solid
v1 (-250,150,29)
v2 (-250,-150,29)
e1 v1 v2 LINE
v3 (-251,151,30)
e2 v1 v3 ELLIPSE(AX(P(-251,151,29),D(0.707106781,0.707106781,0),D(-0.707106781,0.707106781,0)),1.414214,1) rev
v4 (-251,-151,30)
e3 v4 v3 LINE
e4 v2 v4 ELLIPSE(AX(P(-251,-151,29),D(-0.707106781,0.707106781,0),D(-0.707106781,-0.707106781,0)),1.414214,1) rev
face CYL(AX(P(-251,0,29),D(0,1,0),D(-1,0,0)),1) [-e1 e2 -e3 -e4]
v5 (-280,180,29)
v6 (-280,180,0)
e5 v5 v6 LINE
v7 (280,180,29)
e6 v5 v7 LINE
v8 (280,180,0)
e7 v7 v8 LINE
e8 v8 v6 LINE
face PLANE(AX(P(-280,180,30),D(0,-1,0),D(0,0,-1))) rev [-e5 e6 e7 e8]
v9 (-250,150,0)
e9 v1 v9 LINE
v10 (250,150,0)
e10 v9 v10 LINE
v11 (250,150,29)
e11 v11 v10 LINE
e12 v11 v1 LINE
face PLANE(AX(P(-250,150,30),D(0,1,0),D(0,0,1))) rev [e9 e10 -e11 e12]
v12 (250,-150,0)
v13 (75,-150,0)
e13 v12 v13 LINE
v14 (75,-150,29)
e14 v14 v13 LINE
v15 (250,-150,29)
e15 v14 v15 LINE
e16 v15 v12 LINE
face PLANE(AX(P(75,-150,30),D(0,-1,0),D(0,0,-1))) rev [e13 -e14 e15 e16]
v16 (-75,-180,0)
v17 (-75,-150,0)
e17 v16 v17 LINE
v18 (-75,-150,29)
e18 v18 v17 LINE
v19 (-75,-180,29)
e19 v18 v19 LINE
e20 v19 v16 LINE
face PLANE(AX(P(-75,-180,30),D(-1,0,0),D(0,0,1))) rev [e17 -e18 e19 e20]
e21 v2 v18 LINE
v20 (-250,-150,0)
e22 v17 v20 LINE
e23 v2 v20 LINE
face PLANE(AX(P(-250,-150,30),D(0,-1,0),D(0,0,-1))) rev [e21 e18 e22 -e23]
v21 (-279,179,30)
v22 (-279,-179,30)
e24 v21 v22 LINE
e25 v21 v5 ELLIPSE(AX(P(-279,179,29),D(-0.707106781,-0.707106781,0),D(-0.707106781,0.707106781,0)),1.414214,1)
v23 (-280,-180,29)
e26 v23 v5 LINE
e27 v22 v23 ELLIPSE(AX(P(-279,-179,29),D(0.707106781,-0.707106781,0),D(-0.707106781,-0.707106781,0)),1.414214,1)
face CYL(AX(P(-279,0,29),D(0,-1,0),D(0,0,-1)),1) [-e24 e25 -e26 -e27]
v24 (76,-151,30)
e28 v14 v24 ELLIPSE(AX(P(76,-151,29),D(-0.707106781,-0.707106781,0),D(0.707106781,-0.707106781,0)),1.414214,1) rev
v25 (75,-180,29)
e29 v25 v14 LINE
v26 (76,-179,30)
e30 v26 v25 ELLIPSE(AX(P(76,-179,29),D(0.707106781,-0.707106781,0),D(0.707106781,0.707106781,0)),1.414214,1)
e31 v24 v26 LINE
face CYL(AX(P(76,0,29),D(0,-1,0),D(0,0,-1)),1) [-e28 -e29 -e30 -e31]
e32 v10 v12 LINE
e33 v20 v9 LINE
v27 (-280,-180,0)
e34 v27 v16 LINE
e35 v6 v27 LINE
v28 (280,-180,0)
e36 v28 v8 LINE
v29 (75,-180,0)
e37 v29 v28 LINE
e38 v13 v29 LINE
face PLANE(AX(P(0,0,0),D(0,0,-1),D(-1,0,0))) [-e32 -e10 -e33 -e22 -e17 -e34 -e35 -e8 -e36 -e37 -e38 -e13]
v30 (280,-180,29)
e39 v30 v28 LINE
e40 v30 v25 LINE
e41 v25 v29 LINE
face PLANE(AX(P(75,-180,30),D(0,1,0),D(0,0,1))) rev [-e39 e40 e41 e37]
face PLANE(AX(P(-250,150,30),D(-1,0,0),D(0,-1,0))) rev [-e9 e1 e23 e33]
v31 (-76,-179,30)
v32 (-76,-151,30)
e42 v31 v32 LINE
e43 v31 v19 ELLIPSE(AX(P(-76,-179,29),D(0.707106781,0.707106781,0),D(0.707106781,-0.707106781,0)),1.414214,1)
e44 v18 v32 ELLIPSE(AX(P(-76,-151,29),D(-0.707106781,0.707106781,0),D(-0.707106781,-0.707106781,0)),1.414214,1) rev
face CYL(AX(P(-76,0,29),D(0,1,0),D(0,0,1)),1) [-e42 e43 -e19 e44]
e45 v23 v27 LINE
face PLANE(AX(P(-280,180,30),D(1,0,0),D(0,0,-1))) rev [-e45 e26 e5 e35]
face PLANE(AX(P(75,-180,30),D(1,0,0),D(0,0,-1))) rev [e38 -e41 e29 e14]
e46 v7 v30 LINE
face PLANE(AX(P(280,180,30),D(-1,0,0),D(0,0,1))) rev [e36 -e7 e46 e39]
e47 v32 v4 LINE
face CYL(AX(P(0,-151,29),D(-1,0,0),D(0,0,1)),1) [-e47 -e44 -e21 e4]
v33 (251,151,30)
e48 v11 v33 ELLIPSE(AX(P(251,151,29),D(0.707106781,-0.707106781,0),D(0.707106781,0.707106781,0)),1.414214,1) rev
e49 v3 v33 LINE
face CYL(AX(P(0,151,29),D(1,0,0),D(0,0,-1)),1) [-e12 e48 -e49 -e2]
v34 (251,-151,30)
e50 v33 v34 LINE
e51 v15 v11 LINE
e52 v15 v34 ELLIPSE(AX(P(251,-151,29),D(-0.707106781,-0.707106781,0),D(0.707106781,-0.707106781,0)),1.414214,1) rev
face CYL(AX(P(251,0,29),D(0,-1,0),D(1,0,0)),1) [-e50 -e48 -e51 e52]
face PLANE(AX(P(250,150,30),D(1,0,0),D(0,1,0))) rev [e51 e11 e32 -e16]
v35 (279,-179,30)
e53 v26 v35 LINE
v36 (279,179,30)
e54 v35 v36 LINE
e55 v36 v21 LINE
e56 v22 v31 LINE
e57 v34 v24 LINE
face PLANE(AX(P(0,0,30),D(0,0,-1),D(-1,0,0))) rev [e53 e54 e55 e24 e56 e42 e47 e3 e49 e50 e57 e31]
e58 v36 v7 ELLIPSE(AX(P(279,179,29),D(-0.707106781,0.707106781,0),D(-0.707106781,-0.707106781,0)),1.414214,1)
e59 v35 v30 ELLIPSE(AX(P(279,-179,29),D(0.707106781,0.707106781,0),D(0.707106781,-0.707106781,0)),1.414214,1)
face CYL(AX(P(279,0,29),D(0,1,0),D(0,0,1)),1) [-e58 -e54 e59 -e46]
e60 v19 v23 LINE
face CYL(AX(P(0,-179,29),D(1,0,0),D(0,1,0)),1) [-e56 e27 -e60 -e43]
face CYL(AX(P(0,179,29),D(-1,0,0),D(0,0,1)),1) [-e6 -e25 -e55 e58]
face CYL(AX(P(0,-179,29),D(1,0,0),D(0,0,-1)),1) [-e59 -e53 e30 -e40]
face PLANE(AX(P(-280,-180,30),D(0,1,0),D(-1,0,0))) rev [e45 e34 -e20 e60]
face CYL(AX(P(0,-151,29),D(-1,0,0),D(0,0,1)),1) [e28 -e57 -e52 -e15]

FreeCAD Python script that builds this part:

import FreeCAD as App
import Part
import Sketcher
Q = App.Units.Quantity


def edges_at(feature, points):
    """Names of the edges that pass closest to the given points."""
    edges = feature.Shape.Edges
    near = lambda p: min(range(len(edges)), key=lambda i: edges[i].distToShape(Part.Vertex(*p))[0])
    return sorted({f"Edge{near(p) + 1}" for p in points})

doc = App.newDocument("Part")
body = doc.addObject("PartDesign::Body", "Body")

sketch1 = body.newObject("Sketcher::SketchObject", "Sketch")
sketch1.AttachmentSupport = (doc.getObject("XY_Plane"), [""])
sketch1.MapMode = "FlatFace"
sketch1.addGeometry([
    Part.LineSegment(App.Vector(280, 180, 0), App.Vector(-280, 180, 0)),
    Part.LineSegment(App.Vector(-280, 180, 0), App.Vector(-280, -180, 0)),
    Part.LineSegment(App.Vector(-280, -180, 0), App.Vector(-75, -180, 0)),
    Part.LineSegment(App.Vector(-75, -180, 0), App.Vector(-75, -150, 0)),
    Part.LineSegment(App.Vector(-75, -150, 0), App.Vector(-250, -150, 0)),
    Part.LineSegment(App.Vector(-250, -150, 0), App.Vector(-250, 150, 0)),
    Part.LineSegment(App.Vector(-250, 150, 0), App.Vector(250, 150, 0)),
    Part.LineSegment(App.Vector(250, 150, 0), App.Vector(250, -150, 0)),
    Part.LineSegment(App.Vector(250, -150, 0), App.Vector(75, -150, 0)),
    Part.LineSegment(App.Vector(75, -150, 0), App.Vector(75, -180, 0)),
    Part.LineSegment(App.Vector(75, -180, 0), App.Vector(280, -180, 0)),
    Part.LineSegment(App.Vector(280, -180, 0), App.Vector(280, 180, 0)),
], False)
sketch1.addConstraint([
    Sketcher.Constraint("Coincident", 0, 2, 1, 1),
    Sketcher.Constraint("Coincident", 1, 2, 2, 1),
    Sketcher.Constraint("Coincident", 2, 2, 3, 1),
    Sketcher.Constraint("Coincident", 3, 2, 4, 1),
    Sketcher.Constraint("Coincident", 4, 2, 5, 1),
    Sketcher.Constraint("Coincident", 5, 2, 6, 1),
    Sketcher.Constraint("Coincident", 6, 2, 7, 1),
    Sketcher.Constraint("Coincident", 7, 2, 8, 1),
    Sketcher.Constraint("Coincident", 8, 2, 9, 1),
    Sketcher.Constraint("Coincident", 9, 2, 10, 1),
    Sketcher.Constraint("Coincident", 10, 2, 11, 1),
    Sketcher.Constraint("Coincident", 11, 2, 0, 1),
    Sketcher.Constraint("Horizontal", 0),
    Sketcher.Constraint("Vertical", 1),
    Sketcher.Constraint("Horizontal", 2),
    Sketcher.Constraint("Vertical", 3),
    Sketcher.Constraint("Horizontal", 4),
    Sketcher.Constraint("Vertical", 5),
    Sketcher.Constraint("Horizontal", 6),
    Sketcher.Constraint("Vertical", 7),
    Sketcher.Constraint("Horizontal", 8),
    Sketcher.Constraint("Vertical", 9),
    Sketcher.Constraint("Horizontal", 10),
    Sketcher.Constraint("Vertical", 11),
    Sketcher.Constraint("Symmetric", 4, 2, 6, 2, -1, 1),
    Sketcher.Constraint("Symmetric", 0, 2, 10, 2, -1, 1),
    Sketcher.Constraint("Symmetric", 3, 2, 8, 2, -2),
    Sketcher.Constraint("Horizontal", 2, 2, 9, 2),
    Sketcher.Constraint("DistanceX", 0, 2, 0, 1, Q("560 mm")),
    Sketcher.Constraint("DistanceX", 2, 1, 2, 2, Q("205 mm")),
    Sketcher.Constraint("DistanceX", 4, 2, 4, 1, Q("175 mm")),
    Sketcher.Constraint("DistanceY", 1, 2, 1, 1, Q("360 mm")),
    Sketcher.Constraint("DistanceY", 3, 1, 3, 2, Q("30 mm")),
])
pad1 = body.newObject("PartDesign::Pad", "Pad")
pad1.Profile = sketch1
pad1.Length = 30
doc.recompute()

fillet = body.newObject("PartDesign::Fillet", "Fillet")
fillet.Base = (pad1, edges_at(pad1, [
    (177.5, -180, 30),
    (280, 0, 30),
    (0, 180, 30),
    (-280, 0, 30),
    (-177.5, -180, 30),
    (-75, -165, 30),
    (-162.5, -150, 30),
    (-250, 0, 30),
    (0, 150, 30),
    (250, 0, 30),
    (162.5, -150, 30),
    (75, -165, 30),
]))
fillet.Radius = 1

doc.recompute()
